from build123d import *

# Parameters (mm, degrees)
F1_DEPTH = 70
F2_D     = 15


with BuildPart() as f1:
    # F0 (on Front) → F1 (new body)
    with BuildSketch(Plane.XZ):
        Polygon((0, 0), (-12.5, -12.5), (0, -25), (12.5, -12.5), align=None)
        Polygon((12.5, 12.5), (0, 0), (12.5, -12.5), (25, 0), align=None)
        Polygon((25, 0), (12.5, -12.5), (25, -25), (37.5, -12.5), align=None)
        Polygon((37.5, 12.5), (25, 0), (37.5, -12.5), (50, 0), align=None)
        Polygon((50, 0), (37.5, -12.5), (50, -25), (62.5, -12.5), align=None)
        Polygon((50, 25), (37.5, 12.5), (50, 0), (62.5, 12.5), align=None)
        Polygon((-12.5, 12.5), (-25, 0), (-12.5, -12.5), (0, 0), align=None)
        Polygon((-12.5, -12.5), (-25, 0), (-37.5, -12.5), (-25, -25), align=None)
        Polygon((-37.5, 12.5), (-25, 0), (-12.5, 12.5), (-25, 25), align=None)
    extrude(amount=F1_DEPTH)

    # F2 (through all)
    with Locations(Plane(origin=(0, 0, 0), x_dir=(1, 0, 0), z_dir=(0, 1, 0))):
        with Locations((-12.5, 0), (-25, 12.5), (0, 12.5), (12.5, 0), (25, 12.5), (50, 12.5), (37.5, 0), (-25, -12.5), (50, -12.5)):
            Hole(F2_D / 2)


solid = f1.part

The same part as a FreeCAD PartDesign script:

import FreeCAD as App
import Part
import Sketcher

doc = App.newDocument("Part")
body = doc.addObject("PartDesign::Body", "Body")

# Sketch on XZ plane
sketch1 = body.newObject("Sketcher::SketchObject", "Sketch")
sketch1.AttachmentSupport = (doc.getObject("XZ_Plane"), [""])
sketch1.MapMode = "FlatFace"
sketch1.addGeometry([
    Part.LineSegment(App.Vector(0, -25, 0), App.Vector(12, -12, 0)),  # 0
    Part.LineSegment(App.Vector(12, -12, 0), App.Vector(25, -25, 0)),  # 1
    Part.LineSegment(App.Vector(25, -25, 0), App.Vector(38, -12, 0)),  # 2
    Part.LineSegment(App.Vector(38, -12, 0), App.Vector(50, -25, 0)),  # 3
    Part.LineSegment(App.Vector(50, -25, 0), App.Vector(62, -12, 0)),  # 4
    Part.LineSegment(App.Vector(62, -12, 0), App.Vector(50, 0, 0)),  # 5
    Part.LineSegment(App.Vector(50, 0, 0), App.Vector(62, 12, 0)),  # 6
    Part.LineSegment(App.Vector(62, 12, 0), App.Vector(50, 25, 0)),  # 7
    Part.LineSegment(App.Vector(50, 25, 0), App.Vector(25, 0, 0)),  # 8
    Part.LineSegment(App.Vector(25, 0, 0), App.Vector(12, 12, 0)),  # 9
    Part.LineSegment(App.Vector(12, 12, 0), App.Vector(0, 0, 0)),  # 10
    Part.LineSegment(App.Vector(0, 0, 0), App.Vector(-25, 25, 0)),  # 11
    Part.LineSegment(App.Vector(-25, 25, 0), App.Vector(-38, 12, 0)),  # 12
    Part.LineSegment(App.Vector(-38, 12, 0), App.Vector(-25, 0, 0)),  # 13
    Part.LineSegment(App.Vector(-25, 0, 0), App.Vector(-38, -12, 0)),  # 14
    Part.LineSegment(App.Vector(-38, -12, 0), App.Vector(-25, -25, 0)),  # 15
    Part.LineSegment(App.Vector(-25, -25, 0), App.Vector(-12, -12, 0)),  # 16
    Part.LineSegment(App.Vector(-12, -12, 0), App.Vector(0, -25, 0)),  # 17
], False)
sketch1.addConstraint([
    Sketcher.Constraint("Coincident", 0, 2, 1, 1),
    Sketcher.Constraint("Coincident", 1, 2, 2, 1),
    Sketcher.Constraint("Coincident", 2, 2, 3, 1),
    Sketcher.Constraint("Coincident", 3, 2, 4, 1),
    Sketcher.Constraint("Coincident", 4, 2, 5, 1),
    Sketcher.Constraint("Coincident", 5, 2, 6, 1),
    Sketcher.Constraint("Coincident", 6, 2, 7, 1),
    Sketcher.Constraint("Coincident", 7, 2, 8, 1),
    Sketcher.Constraint("Coincident", 8, 2, 9, 1),
    Sketcher.Constraint("Coincident", 9, 2, 10, 1),
    Sketcher.Constraint("Coincident", 10, 2, 11, 1),
    Sketcher.Constraint("Coincident", 11, 2, 12, 1),
    Sketcher.Constraint("Coincident", 12, 2, 13, 1),
    Sketcher.Constraint("Coincident", 13, 2, 14, 1),
    Sketcher.Constraint("Coincident", 14, 2, 15, 1),
    Sketcher.Constraint("Coincident", 15, 2, 16, 1),
    Sketcher.Constraint("Coincident", 16, 2, 17, 1),
    Sketcher.Constraint("Coincident", 17, 2, 0, 1),
    Sketcher.Constraint("Coincident", 10, 2, -1, 1),
    Sketcher.Constraint("Symmetric", 1, 2, 11, 2, -1, 1),
    Sketcher.Constraint("Symmetric", 2, 2, 12, 2, -1, 1),
    Sketcher.Constraint("Symmetric", 8, 2, 13, 2, -1, 1),
    Sketcher.Constraint("Symmetric", 9, 2, 16, 2, -1, 1),
    Sketcher.Constraint("Symmetric", 2, 2, 14, 2, -2),
    Sketcher.Constraint("Symmetric", 1, 2, 15, 2, -2),
    Sketcher.Constraint("Symmetric", 0, 2, 16, 2, -2),
    Sketcher.Constraint("Symmetric", 4, 2, 6, 2, -1),
    Sketcher.Constraint("Symmetric", 3, 2, 7, 2, -1),
    Sketcher.Constraint("PointOnObject", 5, 2, -1),
    Sketcher.Constraint("PointOnObject", 8, 2, -1),
    Sketcher.Constraint("PointOnObject", 17, 2, -2),
    Sketcher.Constraint("Perpendicular", 0, 1),
    Sketcher.Constraint("Perpendicular", 1, 2),
    Sketcher.Constraint("Perpendicular", 2, 3),
    Sketcher.Constraint("Perpendicular", 3, 4),
    Sketcher.Constraint("Perpendicular", 4, 5),
    Sketcher.Constraint("Perpendicular", 5, 6),
    Sketcher.Constraint("Perpendicular", 7, 8),
    Sketcher.Constraint("Perpendicular", 8, 9),
    Sketcher.Constraint("Perpendicular", 9, 10),
    Sketcher.Constraint("Horizontal", 0, 2, 2, 2),
    Sketcher.Constraint("Horizontal", 1, 2, 3, 2),
    Sketcher.Constraint("Horizontal", 2, 2, 4, 2),
    Sketcher.Constraint("DistanceX", -1, 1, 1, 2, 25.0),
])
pad1 = body.newObject("PartDesign::Pad", "Pad")
pad1.Profile = sketch1
pad1.Length = 70

# Sketch on XZ plane
sketch2 = body.newObject("Sketcher::SketchObject", "Sketch001")
sketch2.AttachmentSupport = (doc.getObject("XZ_Plane"), [""])
sketch2.MapMode = "FlatFace"
sketch2.addGeometry([
    Part.Circle(App.Vector(-12, 0, 0), App.Vector(0, 0, 1), 8),  # 0
    Part.Circle(App.Vector(-25, -12, 0), App.Vector(0, 0, 1), 8),  # 1
    Part.Circle(App.Vector(0, -12, 0), App.Vector(0, 0, 1), 8),  # 2
    Part.Circle(App.Vector(12, 0, 0), App.Vector(0, 0, 1), 8),  # 3
    Part.Circle(App.Vector(25, -12, 0), App.Vector(0, 0, 1), 8),  # 4
    Part.Circle(App.Vector(50, -12, 0), App.Vector(0, 0, 1), 8),  # 5
    Part.Circle(App.Vector(38, 0, 0), App.Vector(0, 0, 1), 8),  # 6
    Part.Circle(App.Vector(-25, 12, 0), App.Vector(0, 0, 1), 8),  # 7
    Part.Circle(App.Vector(50, 12, 0), App.Vector(0, 0, 1), 8),  # 8
], False)
sketch2.addConstraint([
    Sketcher.Constraint("Equal", 0, 1),
    Sketcher.Constraint("Equal", 1, 2),
    Sketcher.Constraint("Equal", 2, 3),
    Sketcher.Constraint("Equal", 3, 4),
    Sketcher.Constraint("Equal", 4, 5),
    Sketcher.Constraint("Equal", 5, 6),
    Sketcher.Constraint("Equal", 6, 7),
    Sketcher.Constraint("Equal", 7, 8),
    Sketcher.Constraint("Symmetric", 0, 3, 3, 3, -1, 1),
    Sketcher.Constraint("Symmetric", 4, 3, 7, 3, -1, 1),
    Sketcher.Constraint("Symmetric", 1, 3, 4, 3, -2),
    Sketcher.Constraint("Symmetric", 5, 3, 8, 3, -1),
    Sketcher.Constraint("PointOnObject", 0, 3, -1),
    Sketcher.Constraint("PointOnObject", 2, 3, -2),
    Sketcher.Constraint("PointOnObject", 6, 3, -1),
    Sketcher.Constraint("Horizontal", 1, 3, 2, 3),
    Sketcher.Constraint("Horizontal", 4, 3, 5, 3),
    Sketcher.Constraint("Diameter", 0, 15.0),
    Sketcher.Constraint("DistanceX", 1, 3, -1, 1, 25.0),
    Sketcher.Constraint("DistanceX", -1, 1, 5, 3, 50.0),
    Sketcher.Constraint("DistanceX", 0, 3, 3, 3, 25.0),
    Sketcher.Constraint("DistanceX", 3, 3, 6, 3, 25.0),
    Sketcher.Constraint("DistanceY", 1, 3, 7, 3, 25.0),
])
doc.recompute()
hole = body.newObject("PartDesign::Hole", "Hole")
hole.Profile = sketch2
hole.ThreadType = "None"
hole.Diameter = 15
hole.DepthType = "ThroughAll"
hole.Reversed = True

doc.recompute()
